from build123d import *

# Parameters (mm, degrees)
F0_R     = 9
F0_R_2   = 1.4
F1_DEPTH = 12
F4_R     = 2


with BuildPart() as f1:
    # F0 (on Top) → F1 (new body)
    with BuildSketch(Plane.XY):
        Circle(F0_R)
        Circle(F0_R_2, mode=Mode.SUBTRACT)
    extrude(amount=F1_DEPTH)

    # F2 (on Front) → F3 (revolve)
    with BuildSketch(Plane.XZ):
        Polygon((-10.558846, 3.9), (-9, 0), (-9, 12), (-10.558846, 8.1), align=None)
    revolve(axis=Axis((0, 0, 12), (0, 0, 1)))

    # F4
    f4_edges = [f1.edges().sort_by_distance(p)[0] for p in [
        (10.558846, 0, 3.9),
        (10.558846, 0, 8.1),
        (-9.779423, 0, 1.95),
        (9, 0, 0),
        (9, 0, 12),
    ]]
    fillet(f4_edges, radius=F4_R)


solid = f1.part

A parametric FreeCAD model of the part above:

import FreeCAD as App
import Part
import Sketcher

V = App.Vector


def edges_at(feature, points):
    """Names of the edges that pass closest to the given points."""
    edges = feature.Shape.Edges
    near = lambda p: min(range(len(edges)), key=lambda i: edges[i].distToShape(Part.Vertex(*p))[0])
    return sorted({f"Edge{near(p) + 1}" for p in points})

doc = App.newDocument("Part")
body = doc.addObject("PartDesign::Body", "Body")

# Sketch on XY plane
sketch1 = body.newObject("Sketcher::SketchObject", "Sketch")
sketch1.AttachmentSupport = (doc.getObject("XY_Plane"), [""])
sketch1.MapMode = "FlatFace"
sketch1.addGeometry([
    Part.Circle(V(0, 0, 0), V(0, 0, 1), 9),
    Part.Circle(V(0, 0, 0), V(0, 0, 1), 1.4),
], False)
sketch1.addConstraint([
    Sketcher.Constraint("Coincident", 0, 3, -1, 1),
    Sketcher.Constraint("Coincident", 1, 3, -1, 1),
    Sketcher.Constraint("Diameter", 0, 18.0),
    Sketcher.Constraint("Diameter", 1, 2.8),
])
pad1 = body.newObject("PartDesign::Pad", "Pad")
pad1.Profile = sketch1
pad1.Length = 12

# Sketch on XZ plane
sketch2 = body.newObject("Sketcher::SketchObject", "Sketch001")
sketch2.AttachmentSupport = (doc.getObject("XZ_Plane"), [""])
sketch2.MapMode = "FlatFace"
sketch2.addGeometry([
    Part.LineSegment(V(-10.6, 3.9, 0), V(-9, 0, 0)),
    Part.LineSegment(V(-9, 0, 0), V(-9, 12, 0)),
    Part.LineSegment(V(-9, 12, 0), V(-10.6, 8.1, 0)),
    Part.LineSegment(V(-10.6, 8.1, 0), V(-10.6, 3.9, 0)),
], False)
sketch2.addConstraint([
    Sketcher.Constraint("Coincident", 0, 2, 1, 1),
    Sketcher.Constraint("Coincident", 1, 2, 2, 1),
    Sketcher.Constraint("Coincident", 2, 2, 3, 1),
    Sketcher.Constraint("Coincident", 3, 2, 0, 1),
    Sketcher.Constraint("Vertical", 1),
    Sketcher.Constraint("Vertical", 3),
    Sketcher.Constraint("PointOnObject", 0, 2, -1),
    Sketcher.Constraint("Equal", 0, 2),
    Sketcher.Constraint("DistanceY", 1, 1, 1, 2, 12.0),
    Sketcher.Constraint("DistanceY", 3, 2, 3, 1, 4.2),
    Sketcher.Constraint("DistanceX", 0, 2, -1, 1, 9.0),
    Sketcher.Constraint("Distance", 0, 4.2),
])
revolution = body.newObject("PartDesign::Revolution", "Revolution")
revolution.Profile = sketch2
revolution.ReferenceAxis = (sketch2, ["V_Axis"])
revolution.Angle = 360
doc.recompute()

fillet = body.newObject("PartDesign::Fillet", "Fillet")
fillet.Base = (revolution, edges_at(revolution, [
    (10.559, 0, 3.9),
    (10.559, 0, 8.1),
    (-9.779, 0, 1.95),
    (9, 0, 0),
    (9, 0, 12),
]))
fillet.Radius = 2

doc.recompute()
